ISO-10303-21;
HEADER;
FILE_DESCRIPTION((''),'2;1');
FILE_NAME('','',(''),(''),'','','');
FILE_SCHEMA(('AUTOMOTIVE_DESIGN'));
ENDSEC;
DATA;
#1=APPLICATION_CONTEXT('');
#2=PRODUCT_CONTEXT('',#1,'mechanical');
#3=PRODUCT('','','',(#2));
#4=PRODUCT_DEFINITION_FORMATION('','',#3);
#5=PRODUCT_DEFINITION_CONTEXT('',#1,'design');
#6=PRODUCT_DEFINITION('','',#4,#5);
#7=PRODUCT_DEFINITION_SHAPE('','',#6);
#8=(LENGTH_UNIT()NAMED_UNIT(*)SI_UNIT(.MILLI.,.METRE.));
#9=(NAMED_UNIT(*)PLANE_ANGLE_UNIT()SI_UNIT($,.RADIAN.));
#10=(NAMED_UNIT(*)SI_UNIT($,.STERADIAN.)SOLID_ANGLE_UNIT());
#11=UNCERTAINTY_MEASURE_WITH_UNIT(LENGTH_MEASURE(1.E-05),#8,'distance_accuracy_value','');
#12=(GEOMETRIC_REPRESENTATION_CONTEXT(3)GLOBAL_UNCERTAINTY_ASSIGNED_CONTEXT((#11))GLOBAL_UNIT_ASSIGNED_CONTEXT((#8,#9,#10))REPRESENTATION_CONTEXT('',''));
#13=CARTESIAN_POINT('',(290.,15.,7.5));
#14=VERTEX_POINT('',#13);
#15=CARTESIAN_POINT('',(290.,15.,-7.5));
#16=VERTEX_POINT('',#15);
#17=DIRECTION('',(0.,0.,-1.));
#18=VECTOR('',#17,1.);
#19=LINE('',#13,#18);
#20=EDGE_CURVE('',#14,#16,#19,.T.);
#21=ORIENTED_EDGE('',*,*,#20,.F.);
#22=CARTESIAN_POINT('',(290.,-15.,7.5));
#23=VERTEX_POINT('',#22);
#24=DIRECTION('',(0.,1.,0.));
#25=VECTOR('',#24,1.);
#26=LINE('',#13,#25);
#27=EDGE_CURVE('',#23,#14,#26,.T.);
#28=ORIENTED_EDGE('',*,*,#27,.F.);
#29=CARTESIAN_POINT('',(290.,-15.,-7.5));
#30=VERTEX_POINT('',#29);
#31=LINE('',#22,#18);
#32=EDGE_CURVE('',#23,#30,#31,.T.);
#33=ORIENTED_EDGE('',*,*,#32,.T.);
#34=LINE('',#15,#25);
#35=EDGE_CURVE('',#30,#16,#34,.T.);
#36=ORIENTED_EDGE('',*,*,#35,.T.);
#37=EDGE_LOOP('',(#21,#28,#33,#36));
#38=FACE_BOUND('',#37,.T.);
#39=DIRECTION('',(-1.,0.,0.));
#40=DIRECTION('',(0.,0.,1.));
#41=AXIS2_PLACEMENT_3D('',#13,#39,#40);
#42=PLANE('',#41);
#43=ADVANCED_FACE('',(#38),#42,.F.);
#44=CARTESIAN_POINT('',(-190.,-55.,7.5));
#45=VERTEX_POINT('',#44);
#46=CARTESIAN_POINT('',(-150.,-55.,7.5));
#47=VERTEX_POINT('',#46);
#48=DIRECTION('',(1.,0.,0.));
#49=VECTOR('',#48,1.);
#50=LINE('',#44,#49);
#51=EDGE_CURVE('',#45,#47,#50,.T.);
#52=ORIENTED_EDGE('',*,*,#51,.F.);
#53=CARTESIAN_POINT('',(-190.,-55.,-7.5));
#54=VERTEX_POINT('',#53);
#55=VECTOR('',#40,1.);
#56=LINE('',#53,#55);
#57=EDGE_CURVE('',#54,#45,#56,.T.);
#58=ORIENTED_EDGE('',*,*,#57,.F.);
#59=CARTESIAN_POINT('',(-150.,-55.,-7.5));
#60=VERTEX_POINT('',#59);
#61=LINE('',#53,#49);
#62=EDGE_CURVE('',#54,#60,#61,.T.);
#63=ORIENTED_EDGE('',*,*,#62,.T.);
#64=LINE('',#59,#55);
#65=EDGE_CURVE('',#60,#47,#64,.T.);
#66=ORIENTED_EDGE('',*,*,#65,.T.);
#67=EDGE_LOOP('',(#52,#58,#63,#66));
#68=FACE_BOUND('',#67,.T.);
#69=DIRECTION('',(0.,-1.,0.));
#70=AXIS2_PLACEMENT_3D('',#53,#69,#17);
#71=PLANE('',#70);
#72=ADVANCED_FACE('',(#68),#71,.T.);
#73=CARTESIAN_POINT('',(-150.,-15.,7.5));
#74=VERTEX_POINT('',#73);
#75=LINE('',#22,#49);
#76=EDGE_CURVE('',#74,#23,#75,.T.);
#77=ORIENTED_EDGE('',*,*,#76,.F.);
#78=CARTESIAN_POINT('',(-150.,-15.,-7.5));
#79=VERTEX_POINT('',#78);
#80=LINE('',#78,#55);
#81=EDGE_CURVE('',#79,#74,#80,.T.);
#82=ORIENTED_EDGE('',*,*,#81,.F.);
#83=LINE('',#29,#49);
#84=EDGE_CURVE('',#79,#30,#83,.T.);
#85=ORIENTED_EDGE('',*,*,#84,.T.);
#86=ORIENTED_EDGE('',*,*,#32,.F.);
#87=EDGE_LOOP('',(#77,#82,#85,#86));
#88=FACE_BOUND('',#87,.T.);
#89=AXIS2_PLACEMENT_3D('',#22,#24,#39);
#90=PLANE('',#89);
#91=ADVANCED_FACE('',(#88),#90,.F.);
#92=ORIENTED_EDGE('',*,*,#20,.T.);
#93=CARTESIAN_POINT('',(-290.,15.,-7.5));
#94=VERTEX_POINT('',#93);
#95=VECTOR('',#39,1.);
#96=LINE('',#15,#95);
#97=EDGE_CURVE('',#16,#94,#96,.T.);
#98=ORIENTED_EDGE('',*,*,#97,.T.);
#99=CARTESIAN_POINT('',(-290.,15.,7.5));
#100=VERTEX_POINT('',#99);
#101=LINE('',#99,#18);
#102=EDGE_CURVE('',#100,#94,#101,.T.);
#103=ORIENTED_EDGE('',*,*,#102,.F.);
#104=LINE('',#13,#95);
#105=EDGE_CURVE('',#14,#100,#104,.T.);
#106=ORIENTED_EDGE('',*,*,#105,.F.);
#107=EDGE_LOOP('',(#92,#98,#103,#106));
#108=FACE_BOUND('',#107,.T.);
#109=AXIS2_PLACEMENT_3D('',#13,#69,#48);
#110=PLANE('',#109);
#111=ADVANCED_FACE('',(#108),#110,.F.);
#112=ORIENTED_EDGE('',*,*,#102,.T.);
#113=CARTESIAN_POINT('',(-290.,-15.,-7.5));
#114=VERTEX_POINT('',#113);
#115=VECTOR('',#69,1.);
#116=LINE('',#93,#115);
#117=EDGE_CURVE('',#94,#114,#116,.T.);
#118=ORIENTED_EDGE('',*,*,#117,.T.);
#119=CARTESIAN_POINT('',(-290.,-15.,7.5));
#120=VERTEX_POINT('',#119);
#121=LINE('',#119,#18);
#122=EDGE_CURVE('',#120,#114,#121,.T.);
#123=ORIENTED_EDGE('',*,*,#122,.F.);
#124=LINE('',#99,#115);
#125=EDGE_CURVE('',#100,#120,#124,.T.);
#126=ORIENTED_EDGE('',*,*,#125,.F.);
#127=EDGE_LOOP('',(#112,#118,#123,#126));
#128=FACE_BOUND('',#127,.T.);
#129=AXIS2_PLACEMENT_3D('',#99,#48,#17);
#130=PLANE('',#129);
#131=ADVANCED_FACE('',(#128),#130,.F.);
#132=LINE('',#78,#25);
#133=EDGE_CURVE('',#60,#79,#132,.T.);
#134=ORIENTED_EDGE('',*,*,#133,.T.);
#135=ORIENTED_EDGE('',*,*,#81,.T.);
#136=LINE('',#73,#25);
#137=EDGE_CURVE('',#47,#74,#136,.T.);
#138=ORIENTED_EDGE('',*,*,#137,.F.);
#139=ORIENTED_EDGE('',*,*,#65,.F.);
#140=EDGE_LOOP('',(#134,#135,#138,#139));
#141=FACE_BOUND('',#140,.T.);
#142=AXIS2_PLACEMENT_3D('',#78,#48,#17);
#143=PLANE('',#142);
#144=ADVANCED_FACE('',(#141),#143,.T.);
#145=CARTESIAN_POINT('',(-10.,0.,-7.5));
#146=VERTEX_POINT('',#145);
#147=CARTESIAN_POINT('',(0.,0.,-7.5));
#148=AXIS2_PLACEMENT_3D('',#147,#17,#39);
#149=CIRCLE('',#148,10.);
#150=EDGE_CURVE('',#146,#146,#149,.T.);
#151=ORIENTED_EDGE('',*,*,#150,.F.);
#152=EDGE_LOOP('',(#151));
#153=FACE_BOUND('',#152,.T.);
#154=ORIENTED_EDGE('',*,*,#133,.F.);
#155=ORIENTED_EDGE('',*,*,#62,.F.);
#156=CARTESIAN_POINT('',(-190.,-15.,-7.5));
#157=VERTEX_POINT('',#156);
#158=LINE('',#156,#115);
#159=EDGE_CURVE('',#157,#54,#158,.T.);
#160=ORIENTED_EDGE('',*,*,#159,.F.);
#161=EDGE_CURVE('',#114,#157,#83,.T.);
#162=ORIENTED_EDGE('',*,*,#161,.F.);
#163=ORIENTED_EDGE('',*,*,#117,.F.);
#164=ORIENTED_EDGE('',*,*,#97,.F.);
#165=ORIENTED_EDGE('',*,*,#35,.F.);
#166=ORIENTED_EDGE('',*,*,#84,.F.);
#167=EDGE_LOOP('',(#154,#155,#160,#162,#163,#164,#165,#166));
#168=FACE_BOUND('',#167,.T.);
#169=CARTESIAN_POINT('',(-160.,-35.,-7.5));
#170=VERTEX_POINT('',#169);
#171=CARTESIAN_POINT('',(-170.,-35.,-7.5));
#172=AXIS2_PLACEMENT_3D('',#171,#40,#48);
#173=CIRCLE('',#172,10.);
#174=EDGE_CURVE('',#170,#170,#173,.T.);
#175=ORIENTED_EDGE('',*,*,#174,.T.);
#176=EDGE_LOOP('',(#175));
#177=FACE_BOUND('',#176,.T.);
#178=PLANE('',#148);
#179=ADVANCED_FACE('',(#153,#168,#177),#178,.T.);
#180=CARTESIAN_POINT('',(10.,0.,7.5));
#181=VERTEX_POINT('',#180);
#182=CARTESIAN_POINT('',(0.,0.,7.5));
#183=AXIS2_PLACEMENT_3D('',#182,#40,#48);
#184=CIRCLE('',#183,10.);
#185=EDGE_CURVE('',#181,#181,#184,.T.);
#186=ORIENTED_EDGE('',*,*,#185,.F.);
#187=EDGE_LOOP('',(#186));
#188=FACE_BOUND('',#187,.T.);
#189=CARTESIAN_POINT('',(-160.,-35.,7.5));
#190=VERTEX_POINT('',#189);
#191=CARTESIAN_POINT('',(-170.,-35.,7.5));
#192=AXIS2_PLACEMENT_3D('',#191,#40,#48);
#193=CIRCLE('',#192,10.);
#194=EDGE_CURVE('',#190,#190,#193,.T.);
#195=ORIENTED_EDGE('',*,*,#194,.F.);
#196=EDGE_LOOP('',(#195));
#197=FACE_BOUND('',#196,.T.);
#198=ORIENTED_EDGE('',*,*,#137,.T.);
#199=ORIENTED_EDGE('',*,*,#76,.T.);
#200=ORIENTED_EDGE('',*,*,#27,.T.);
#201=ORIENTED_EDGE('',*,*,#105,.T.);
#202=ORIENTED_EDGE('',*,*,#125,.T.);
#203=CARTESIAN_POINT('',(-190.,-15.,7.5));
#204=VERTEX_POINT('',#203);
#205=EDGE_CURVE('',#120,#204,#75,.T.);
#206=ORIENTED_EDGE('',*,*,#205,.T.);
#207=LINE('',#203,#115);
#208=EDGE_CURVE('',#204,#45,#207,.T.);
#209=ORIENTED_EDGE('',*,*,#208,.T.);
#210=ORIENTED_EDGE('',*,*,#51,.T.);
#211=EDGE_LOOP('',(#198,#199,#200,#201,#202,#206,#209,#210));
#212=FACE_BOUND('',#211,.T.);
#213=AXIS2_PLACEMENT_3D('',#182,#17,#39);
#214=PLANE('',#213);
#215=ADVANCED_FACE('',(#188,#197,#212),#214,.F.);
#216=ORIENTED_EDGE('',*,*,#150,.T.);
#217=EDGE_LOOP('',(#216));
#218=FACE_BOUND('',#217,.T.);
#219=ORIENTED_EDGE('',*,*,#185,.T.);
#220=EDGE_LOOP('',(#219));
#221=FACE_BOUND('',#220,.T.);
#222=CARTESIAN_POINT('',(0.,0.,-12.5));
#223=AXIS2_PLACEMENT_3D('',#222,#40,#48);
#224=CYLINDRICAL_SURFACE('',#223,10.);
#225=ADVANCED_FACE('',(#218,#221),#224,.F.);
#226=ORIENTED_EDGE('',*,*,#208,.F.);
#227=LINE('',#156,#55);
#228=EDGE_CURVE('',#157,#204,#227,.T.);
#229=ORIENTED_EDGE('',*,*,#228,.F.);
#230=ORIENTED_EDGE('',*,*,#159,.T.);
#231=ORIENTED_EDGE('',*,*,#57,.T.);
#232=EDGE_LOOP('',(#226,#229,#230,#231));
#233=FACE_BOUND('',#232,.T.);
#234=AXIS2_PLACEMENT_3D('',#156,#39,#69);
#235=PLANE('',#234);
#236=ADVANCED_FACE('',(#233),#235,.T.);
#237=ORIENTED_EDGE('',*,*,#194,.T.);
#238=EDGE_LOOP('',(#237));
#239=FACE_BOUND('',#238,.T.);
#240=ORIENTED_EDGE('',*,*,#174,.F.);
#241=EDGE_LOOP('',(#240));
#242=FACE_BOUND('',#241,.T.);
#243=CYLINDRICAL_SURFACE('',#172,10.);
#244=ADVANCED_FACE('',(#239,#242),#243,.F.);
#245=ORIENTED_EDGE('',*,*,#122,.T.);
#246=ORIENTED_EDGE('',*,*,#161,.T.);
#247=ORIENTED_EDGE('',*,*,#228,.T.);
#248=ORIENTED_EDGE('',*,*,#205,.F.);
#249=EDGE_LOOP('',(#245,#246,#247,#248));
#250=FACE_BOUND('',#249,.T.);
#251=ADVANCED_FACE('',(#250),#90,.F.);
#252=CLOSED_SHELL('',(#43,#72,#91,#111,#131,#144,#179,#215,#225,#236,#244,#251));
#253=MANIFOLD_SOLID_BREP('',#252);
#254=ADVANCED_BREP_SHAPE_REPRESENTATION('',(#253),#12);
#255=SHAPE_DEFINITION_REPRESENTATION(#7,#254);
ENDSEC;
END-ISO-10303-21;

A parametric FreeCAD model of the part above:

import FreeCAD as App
import Part
import Sketcher
from FreeCAD import Vector
Q = App.Units.Quantity

doc = App.newDocument("Part")
body = doc.addObject("PartDesign::Body", "Body")

# Sketch on XY plane
sketch1 = doc.addObject("Sketcher::SketchObject", "Sketch")
body.addObject(sketch1)
sketch1.AttachmentSupport = (doc.XY_Plane, [""])
sketch1.MapMode = "FlatFace"
sketch1.addGeometry(Part.LineSegment(Vector(-290, 15, 0), Vector(-290, -15, 0)), False)
sketch1.addGeometry(Part.LineSegment(Vector(-290, -15, 0), Vector(290, -15, 0)), False)
sketch1.addGeometry(Part.LineSegment(Vector(290, -15, 0), Vector(290, 15, 0)), False)
sketch1.addGeometry(Part.LineSegment(Vector(290, 15, 0), Vector(-290, 15, 0)), False)
sketch1.addConstraint(Sketcher.Constraint("Coincident", 0, 2, 1, 1))
sketch1.addConstraint(Sketcher.Constraint("Coincident", 1, 2, 2, 1))
sketch1.addConstraint(Sketcher.Constraint("Coincident", 2, 2, 3, 1))
sketch1.addConstraint(Sketcher.Constraint("Coincident", 3, 2, 0, 1))
sketch1.addConstraint(Sketcher.Constraint("Vertical", 0))
sketch1.addConstraint(Sketcher.Constraint("Horizontal", 1))
sketch1.addConstraint(Sketcher.Constraint("Vertical", 2))
sketch1.addConstraint(Sketcher.Constraint("Horizontal", 3))
sketch1.addConstraint(Sketcher.Constraint("Symmetric", 0, 2, 2, 2, -1, 1))
sketch1.addConstraint(Sketcher.Constraint("DistanceX", 1, 1, 1, 2, Q("580 mm")))
sketch1.addConstraint(Sketcher.Constraint("DistanceY", 0, 2, 0, 1, Q("30 mm")))
pad1 = doc.addObject("PartDesign::Pad", "Pad")
body.addObject(pad1)
pad1.Profile = sketch1
pad1.Length = 15
pad1.Midplane = True

# Sketch on XY plane
sketch2 = doc.addObject("Sketcher::SketchObject", "Sketch001")
body.addObject(sketch2)
sketch2.AttachmentSupport = (doc.XY_Plane, [""])
sketch2.MapMode = "FlatFace"
sketch2.AttachmentOffset = App.Placement(Vector(0, 0, 7.5), App.Rotation())
sketch2.addGeometry(Part.Circle(Vector(0, 0, 0), Vector(0, 0, 1), 10), False)
sketch2.addConstraint(Sketcher.Constraint("Coincident", 0, 3, -1, 1))
sketch2.addConstraint(Sketcher.Constraint("Diameter", 0, Q("20 mm")))
pocket1 = doc.addObject("PartDesign::Pocket", "Pocket")
body.addObject(pocket1)
pocket1.Profile = sketch2
pocket1.Length = 20

# Sketch on XY plane
sketch3 = doc.addObject("Sketcher::SketchObject", "Sketch002")
body.addObject(sketch3)
sketch3.AttachmentSupport = (doc.XY_Plane, [""])
sketch3.MapMode = "FlatFace"
sketch3.AttachmentOffset = App.Placement(Vector(0, 0, 7.5), App.Rotation())
sketch3.addGeometry(Part.LineSegment(Vector(-190, -15, 0), Vector(-190, -55, 0)), False)
sketch3.addGeometry(Part.LineSegment(Vector(-190, -55, 0), Vector(-150, -55, 0)), False)
sketch3.addGeometry(Part.LineSegment(Vector(-150, -55, 0), Vector(-150, -15, 0)), False)
sketch3.addGeometry(Part.LineSegment(Vector(-150, -15, 0), Vector(-190, -15, 0)), False)
sketch3.addGeometry(Part.Circle(Vector(-170, -35, 0), Vector(0, 0, 1), 10), False)
sketch3.addConstraint(Sketcher.Constraint("Coincident", 0, 2, 1, 1))
sketch3.addConstraint(Sketcher.Constraint("Coincident", 1, 2, 2, 1))
sketch3.addConstraint(Sketcher.Constraint("Coincident", 2, 2, 3, 1))
sketch3.addConstraint(Sketcher.Constraint("Coincident", 3, 2, 0, 1))
sketch3.addConstraint(Sketcher.Constraint("Vertical", 0))
sketch3.addConstraint(Sketcher.Constraint("Horizontal", 1))
sketch3.addConstraint(Sketcher.Constraint("Vertical", 2))
sketch3.addConstraint(Sketcher.Constraint("Horizontal", 3))
sketch3.addConstraint(Sketcher.Constraint("Equal", 3, 0))
sketch3.addConstraint(Sketcher.Constraint("Diameter", 4, Q("20 mm")))
sketch3.addConstraint(Sketcher.Constraint("DistanceX", 1, 1, 1, 2, Q("40 mm")))
sketch3.addConstraint(Sketcher.Constraint("DistanceX", 4, 3, -1, 1, Q("170 mm")))
sketch3.addConstraint(Sketcher.Constraint("DistanceY", 4, 3, -1, 1, Q("35 mm")))
sketch3.addConstraint(Sketcher.Constraint("DistanceX", 0, 2, -1, 1, Q("190 mm")))
sketch3.addConstraint(Sketcher.Constraint("DistanceY", 0, 2, -1, 1, Q("55 mm")))
pad2 = doc.addObject("PartDesign::Pad", "Pad001")
body.addObject(pad2)
pad2.Profile = sketch3
pad2.Length = 15
pad2.Reversed = True

doc.recompute()
